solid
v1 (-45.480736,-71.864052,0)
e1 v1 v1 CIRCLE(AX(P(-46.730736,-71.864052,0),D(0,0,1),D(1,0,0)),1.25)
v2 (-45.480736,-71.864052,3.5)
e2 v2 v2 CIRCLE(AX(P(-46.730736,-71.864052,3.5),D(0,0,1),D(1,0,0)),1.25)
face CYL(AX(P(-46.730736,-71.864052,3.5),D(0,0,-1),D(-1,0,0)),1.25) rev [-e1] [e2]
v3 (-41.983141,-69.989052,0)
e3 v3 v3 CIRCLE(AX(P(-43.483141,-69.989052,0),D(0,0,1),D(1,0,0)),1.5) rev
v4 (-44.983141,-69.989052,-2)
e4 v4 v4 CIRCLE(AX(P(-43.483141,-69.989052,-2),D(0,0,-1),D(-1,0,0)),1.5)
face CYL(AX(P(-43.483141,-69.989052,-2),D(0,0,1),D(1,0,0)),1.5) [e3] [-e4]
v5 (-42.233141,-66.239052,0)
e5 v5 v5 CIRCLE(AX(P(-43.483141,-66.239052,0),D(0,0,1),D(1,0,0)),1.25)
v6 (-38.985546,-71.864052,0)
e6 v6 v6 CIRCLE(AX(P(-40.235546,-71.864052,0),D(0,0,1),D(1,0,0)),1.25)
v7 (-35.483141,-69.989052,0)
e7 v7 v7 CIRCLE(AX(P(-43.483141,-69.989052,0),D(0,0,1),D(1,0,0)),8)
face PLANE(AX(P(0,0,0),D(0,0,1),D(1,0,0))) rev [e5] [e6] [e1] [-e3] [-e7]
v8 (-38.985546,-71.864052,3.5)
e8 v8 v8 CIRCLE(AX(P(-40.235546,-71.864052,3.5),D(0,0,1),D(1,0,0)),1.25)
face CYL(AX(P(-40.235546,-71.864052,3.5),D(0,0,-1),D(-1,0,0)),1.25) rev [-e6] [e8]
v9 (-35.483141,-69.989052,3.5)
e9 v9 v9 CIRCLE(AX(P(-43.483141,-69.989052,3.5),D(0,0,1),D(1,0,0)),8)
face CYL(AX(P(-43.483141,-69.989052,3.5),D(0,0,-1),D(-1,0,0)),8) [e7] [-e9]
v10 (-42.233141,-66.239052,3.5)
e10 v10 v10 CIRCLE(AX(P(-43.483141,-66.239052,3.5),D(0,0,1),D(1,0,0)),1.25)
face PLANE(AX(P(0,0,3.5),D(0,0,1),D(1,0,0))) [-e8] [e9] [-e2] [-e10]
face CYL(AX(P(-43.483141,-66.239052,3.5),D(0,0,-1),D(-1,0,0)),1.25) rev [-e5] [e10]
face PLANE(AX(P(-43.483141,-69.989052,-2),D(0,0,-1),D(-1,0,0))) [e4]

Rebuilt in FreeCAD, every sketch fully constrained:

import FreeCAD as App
import Part
import Sketcher
from FreeCAD import Vector
Q = App.Units.Quantity

doc = App.newDocument("Part")
body = doc.addObject("PartDesign::Body", "Body")

sketch1 = body.newObject("Sketcher::SketchObject", "Sketch")
sketch1.AttachmentSupport = (doc.getObject("XY_Plane"), [""])
sketch1.MapMode = "FlatFace"
sketch1.addGeometry(Part.Circle(Vector(-43.5, -70, 0), Vector(0, 0, 1), 8), False)
sketch1.addGeometry(Part.Circle(Vector(-46.7, -71.9, 0), Vector(0, 0, 1), 1.2), False)
sketch1.addGeometry(Part.Circle(Vector(-40.2, -71.9, 0), Vector(0, 0, 1), 1.2), False)
sketch1.addGeometry(Part.Circle(Vector(-43.5, -66.2, 0), Vector(0, 0, 1), 1.2), False)
sketch1.addConstraint(Sketcher.Constraint("Equal", 1, 2))
sketch1.addConstraint(Sketcher.Constraint("Equal", 2, 3))
sketch1.addConstraint(Sketcher.Constraint("Horizontal", 1, 3, 2, 3))
sketch1.addConstraint(Sketcher.Constraint("Vertical", 0, 3, 3, 3))
sketch1.addConstraint(Sketcher.Constraint("Diameter", 0, Q("16 mm")))
sketch1.addConstraint(Sketcher.Constraint("Diameter", 1, Q("2.5 mm")))
sketch1.addConstraint(Sketcher.Constraint("DistanceY", 0, 3, 3, 3, Q("3.75 mm")))
sketch1.addConstraint(Sketcher.Constraint("DistanceY", 1, 3, 0, 3, Q("1.875 mm")))
sketch1.addConstraint(Sketcher.Constraint("DistanceX", 0, 3, -1, 1, Q("43.483141 mm")))
sketch1.addConstraint(Sketcher.Constraint("DistanceX", 1, 3, 2, 3, Q("6.495191 mm")))
sketch1.addConstraint(Sketcher.Constraint("DistanceY", 0, 3, -1, 1, Q("69.989052 mm")))
sketch1.addConstraint(Sketcher.Constraint("DistanceX", 1, 3, -1, 1, Q("46.730736 mm")))
pad1 = body.newObject("PartDesign::Pad", "Pad")
pad1.Profile = sketch1
pad1.Length = 3.5

sketch2 = body.newObject("Sketcher::SketchObject", "Sketch001")
sketch2.AttachmentSupport = (doc.getObject("XY_Plane"), [""])
sketch2.MapMode = "FlatFace"
sketch2.addGeometry(Part.Circle(Vector(-43.5, -70, 0), Vector(0, 0, 1), 1.5), False)
sketch2.addConstraint(Sketcher.Constraint("Diameter", 0, Q("3 mm")))
sketch2.addConstraint(Sketcher.Constraint("DistanceX", 0, 3, -1, 1, Q("43.483141 mm")))
sketch2.addConstraint(Sketcher.Constraint("DistanceY", 0, 3, -1, 1, Q("69.989052 mm")))
pad2 = body.newObject("PartDesign::Pad", "Pad001")
pad2.Profile = sketch2
pad2.Length = 2
pad2.Reversed = True

doc.recompute()
